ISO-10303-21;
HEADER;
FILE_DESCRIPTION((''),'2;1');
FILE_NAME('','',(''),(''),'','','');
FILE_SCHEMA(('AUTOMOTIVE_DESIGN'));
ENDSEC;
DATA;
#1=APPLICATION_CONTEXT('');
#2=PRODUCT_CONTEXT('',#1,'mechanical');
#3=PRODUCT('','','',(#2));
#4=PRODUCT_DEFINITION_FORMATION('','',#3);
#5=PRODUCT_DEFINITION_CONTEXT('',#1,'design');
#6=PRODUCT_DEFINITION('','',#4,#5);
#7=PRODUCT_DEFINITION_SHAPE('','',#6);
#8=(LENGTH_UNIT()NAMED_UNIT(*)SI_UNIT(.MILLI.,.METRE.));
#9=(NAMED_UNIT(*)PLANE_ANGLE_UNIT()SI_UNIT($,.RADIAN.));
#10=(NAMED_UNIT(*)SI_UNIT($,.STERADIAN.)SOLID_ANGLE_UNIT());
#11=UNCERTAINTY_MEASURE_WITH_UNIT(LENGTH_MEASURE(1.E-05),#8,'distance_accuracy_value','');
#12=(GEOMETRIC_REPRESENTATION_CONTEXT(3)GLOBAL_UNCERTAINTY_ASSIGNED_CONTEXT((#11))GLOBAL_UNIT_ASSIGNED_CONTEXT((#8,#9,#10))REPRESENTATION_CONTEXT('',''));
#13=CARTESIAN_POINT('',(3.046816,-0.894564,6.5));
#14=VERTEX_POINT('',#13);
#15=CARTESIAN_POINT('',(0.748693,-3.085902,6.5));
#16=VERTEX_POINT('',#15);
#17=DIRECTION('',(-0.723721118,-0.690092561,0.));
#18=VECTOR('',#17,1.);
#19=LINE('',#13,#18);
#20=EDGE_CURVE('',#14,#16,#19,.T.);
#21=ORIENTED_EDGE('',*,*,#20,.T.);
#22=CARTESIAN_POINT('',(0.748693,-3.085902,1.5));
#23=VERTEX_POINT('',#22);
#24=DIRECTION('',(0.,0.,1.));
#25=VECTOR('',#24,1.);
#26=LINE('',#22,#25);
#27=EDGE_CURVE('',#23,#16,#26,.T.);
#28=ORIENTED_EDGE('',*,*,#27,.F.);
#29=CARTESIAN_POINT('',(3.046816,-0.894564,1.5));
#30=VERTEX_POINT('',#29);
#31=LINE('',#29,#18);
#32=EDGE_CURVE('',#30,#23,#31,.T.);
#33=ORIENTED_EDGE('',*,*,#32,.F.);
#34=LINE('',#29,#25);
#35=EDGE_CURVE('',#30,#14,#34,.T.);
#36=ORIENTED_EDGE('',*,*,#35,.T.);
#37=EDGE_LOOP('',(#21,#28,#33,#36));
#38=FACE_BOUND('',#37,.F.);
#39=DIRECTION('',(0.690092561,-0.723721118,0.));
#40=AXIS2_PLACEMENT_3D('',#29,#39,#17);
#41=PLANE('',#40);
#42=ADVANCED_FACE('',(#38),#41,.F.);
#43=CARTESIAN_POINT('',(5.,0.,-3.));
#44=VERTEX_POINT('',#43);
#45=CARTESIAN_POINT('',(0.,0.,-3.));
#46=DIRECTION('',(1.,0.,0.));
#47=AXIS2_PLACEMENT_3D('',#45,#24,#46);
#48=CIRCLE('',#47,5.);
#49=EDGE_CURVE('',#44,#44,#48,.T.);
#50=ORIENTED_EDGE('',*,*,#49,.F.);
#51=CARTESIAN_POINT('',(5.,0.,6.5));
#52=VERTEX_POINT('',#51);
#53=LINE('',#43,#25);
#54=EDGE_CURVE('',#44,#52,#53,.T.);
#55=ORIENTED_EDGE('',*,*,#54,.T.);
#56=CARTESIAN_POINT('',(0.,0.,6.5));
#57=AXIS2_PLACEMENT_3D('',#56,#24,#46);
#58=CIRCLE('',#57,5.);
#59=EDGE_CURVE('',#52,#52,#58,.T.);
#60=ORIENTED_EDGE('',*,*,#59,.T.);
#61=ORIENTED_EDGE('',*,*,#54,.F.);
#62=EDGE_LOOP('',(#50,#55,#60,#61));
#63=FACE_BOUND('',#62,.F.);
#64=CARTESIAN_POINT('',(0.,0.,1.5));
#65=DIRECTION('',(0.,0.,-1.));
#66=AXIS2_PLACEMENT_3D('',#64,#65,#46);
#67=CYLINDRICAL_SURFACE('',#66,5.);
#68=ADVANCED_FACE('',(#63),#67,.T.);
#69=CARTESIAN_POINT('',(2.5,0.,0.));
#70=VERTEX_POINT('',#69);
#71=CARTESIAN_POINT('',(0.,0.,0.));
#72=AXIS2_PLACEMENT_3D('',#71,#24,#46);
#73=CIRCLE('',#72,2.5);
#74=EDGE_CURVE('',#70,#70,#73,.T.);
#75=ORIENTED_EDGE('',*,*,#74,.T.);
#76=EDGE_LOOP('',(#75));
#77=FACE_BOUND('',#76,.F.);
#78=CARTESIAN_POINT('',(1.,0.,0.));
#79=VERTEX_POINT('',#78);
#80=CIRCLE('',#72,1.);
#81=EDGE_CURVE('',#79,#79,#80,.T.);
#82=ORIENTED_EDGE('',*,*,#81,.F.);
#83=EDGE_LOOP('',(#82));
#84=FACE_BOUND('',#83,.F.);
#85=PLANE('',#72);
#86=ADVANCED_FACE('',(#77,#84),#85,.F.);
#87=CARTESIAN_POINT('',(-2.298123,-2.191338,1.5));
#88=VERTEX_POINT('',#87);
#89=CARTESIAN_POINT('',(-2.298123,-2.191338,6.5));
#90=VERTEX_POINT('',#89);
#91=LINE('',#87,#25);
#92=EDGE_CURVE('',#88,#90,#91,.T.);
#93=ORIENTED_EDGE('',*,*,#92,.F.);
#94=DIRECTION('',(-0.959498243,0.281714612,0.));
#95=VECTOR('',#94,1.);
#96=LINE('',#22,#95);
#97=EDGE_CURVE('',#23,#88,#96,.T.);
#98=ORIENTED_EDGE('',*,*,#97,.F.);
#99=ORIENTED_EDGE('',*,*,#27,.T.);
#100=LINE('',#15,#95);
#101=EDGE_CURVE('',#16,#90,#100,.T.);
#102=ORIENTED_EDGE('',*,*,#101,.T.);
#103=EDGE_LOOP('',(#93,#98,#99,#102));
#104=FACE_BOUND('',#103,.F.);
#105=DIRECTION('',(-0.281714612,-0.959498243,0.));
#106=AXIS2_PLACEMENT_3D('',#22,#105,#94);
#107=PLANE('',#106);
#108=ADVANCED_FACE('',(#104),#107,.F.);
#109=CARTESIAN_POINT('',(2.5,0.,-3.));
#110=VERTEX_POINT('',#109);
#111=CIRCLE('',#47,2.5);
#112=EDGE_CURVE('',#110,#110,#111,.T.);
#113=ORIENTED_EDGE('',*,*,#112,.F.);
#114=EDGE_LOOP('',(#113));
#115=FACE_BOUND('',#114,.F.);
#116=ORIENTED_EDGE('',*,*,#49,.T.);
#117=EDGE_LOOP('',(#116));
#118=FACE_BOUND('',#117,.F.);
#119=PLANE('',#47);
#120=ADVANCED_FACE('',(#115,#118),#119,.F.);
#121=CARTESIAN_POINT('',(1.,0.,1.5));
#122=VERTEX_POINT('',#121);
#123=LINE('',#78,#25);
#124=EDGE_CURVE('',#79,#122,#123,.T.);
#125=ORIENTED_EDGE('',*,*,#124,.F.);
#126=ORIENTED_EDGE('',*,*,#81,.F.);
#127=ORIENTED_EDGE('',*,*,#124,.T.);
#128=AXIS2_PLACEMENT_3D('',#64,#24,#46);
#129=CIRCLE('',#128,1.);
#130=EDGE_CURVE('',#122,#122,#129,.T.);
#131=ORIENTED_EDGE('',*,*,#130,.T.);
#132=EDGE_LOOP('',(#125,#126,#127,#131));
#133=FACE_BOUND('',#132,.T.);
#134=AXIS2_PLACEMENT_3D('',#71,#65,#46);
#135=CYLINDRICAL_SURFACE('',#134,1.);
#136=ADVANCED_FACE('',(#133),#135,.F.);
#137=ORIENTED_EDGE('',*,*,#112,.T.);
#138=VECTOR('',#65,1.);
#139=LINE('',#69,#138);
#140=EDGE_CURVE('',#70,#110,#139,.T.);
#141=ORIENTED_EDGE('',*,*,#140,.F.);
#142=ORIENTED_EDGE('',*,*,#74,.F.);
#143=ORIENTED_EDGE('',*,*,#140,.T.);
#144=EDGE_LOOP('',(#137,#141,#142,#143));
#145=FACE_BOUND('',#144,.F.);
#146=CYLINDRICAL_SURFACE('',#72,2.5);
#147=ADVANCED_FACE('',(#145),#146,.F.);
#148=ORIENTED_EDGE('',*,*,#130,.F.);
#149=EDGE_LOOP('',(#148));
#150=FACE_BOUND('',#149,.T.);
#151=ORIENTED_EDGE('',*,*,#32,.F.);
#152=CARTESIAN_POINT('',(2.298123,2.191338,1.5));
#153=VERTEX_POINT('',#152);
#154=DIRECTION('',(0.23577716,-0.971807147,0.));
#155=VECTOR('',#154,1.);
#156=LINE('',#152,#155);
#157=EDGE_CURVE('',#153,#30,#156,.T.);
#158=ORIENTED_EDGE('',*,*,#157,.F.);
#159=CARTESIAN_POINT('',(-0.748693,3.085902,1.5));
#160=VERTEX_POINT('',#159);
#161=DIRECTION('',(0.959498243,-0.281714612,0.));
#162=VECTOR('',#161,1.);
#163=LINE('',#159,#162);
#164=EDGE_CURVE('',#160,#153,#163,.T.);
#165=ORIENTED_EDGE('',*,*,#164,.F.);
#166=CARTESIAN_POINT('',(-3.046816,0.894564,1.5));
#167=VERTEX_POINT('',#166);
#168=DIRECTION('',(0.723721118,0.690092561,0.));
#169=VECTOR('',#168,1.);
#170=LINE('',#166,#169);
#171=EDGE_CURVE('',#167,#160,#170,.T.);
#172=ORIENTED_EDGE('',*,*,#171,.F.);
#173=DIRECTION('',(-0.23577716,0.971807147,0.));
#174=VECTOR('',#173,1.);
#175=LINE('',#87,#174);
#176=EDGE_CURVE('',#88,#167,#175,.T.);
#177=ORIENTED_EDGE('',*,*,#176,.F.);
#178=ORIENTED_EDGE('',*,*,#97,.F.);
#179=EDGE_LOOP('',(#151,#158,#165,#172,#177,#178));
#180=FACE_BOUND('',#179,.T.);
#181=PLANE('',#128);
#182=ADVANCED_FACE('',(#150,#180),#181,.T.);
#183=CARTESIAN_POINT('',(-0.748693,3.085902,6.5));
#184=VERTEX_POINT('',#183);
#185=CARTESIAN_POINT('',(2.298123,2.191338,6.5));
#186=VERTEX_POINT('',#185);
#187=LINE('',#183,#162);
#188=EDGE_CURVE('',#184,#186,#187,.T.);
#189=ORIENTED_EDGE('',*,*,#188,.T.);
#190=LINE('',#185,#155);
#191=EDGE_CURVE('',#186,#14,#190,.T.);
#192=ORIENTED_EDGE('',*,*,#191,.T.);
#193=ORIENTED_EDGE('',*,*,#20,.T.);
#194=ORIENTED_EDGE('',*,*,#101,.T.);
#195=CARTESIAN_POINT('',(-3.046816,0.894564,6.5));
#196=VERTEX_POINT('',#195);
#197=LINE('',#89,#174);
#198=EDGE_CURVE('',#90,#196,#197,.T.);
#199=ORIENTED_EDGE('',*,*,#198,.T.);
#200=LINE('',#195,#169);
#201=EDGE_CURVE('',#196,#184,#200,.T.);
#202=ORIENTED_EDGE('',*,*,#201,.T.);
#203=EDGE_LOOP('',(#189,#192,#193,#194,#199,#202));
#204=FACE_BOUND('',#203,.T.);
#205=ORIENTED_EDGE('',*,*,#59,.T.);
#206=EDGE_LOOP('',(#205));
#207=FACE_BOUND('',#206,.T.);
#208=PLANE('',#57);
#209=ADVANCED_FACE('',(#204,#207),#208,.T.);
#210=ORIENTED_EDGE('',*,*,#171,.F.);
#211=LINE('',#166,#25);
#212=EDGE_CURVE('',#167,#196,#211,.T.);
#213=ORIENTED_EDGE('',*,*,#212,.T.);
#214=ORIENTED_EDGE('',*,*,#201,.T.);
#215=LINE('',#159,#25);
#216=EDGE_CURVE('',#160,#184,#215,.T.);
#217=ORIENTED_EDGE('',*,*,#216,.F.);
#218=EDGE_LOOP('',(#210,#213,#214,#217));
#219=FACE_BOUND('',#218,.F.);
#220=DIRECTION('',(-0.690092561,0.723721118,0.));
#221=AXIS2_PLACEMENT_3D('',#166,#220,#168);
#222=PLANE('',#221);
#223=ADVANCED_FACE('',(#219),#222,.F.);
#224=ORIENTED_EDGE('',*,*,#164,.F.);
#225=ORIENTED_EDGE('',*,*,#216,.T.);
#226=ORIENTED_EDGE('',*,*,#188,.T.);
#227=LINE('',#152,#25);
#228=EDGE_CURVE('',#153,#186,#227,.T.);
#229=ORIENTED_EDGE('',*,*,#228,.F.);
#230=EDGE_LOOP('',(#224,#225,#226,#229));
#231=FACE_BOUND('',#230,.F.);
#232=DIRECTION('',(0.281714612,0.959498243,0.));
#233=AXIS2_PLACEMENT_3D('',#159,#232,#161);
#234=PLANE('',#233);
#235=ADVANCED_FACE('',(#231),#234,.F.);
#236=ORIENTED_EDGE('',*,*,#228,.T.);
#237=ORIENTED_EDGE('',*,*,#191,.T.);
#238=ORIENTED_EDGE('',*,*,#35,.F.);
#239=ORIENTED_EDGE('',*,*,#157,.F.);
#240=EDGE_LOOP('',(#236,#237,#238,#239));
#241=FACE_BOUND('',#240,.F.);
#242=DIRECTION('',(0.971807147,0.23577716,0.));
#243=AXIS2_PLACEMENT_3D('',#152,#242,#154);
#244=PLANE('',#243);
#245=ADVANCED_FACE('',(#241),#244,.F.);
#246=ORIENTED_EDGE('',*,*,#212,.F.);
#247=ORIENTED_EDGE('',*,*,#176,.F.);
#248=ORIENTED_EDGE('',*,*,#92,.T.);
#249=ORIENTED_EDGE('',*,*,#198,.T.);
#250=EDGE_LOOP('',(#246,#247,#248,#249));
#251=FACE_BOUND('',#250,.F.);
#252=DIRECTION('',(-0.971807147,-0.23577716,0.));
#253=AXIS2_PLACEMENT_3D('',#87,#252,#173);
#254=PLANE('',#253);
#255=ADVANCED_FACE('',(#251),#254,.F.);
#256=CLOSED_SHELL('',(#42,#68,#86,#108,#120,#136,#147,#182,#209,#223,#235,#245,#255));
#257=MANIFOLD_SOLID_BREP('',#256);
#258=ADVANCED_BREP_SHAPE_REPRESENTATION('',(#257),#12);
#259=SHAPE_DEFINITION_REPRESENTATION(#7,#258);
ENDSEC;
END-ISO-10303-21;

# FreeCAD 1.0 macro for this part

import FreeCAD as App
import Part
import Sketcher

V = App.Vector

doc = App.newDocument("Part")
body = doc.addObject("PartDesign::Body", "Body")

# Sketch on XY plane
sketch1 = body.newObject("Sketcher::SketchObject", "Sketch")
sketch1.AttachmentSupport = (doc.getObject("XY_Plane"), [""])
sketch1.MapMode = "FlatFace"
sketch1.addGeometry(Part.Circle(V(0, 0, 0), V(0, 0, 1), 5), False)
sketch1.addGeometry(Part.Circle(V(0, 0, 0), V(0, 0, 1), 1), False)
sketch1.addConstraint(Sketcher.Constraint("Coincident", 0, 3, -1, 1))
sketch1.addConstraint(Sketcher.Constraint("Coincident", 1, 3, -1, 1))
sketch1.addConstraint(Sketcher.Constraint("Diameter", 0, 10.0))
sketch1.addConstraint(Sketcher.Constraint("Diameter", 1, 2.0))
pad1 = body.newObject("PartDesign::Pad", "Pad")
pad1.Profile = sketch1
pad1.Length = 1.5

# Sketch on XY plane
sketch2 = body.newObject("Sketcher::SketchObject", "Sketch001")
sketch2.AttachmentSupport = (doc.getObject("XY_Plane"), [""])
sketch2.MapMode = "FlatFace"
sketch2.addGeometry(Part.Circle(V(0, 0, 0), V(0, 0, 1), 5), False)
sketch2.addGeometry(Part.Circle(V(0, 0, 0), V(0, 0, 1), 2.5), False)
sketch2.addConstraint(Sketcher.Constraint("Coincident", 0, 3, -1, 1))
sketch2.addConstraint(Sketcher.Constraint("Coincident", 1, 3, -1, 1))
sketch2.addConstraint(Sketcher.Constraint("Diameter", 0, 10.0))
sketch2.addConstraint(Sketcher.Constraint("Diameter", 1, 5.0))
pad2 = body.newObject("PartDesign::Pad", "Pad001")
pad2.Profile = sketch2
pad2.Length = 3
pad2.Reversed = True

# Sketch on XY plane
sketch3 = body.newObject("Sketcher::SketchObject", "Sketch002")
sketch3.AttachmentSupport = (doc.getObject("XY_Plane"), [""])
sketch3.MapMode = "FlatFace"
sketch3.AttachmentOffset = App.Placement(V(0, 0, 1.5), App.Rotation())
sketch3.addGeometry(Part.Circle(V(0, 0, 0), V(0, 0, 1), 5), False)
sketch3.addGeometry(Part.LineSegment(V(-2.3, -2.2, 0), V(-3, 0.9, 0)), False)
sketch3.addGeometry(Part.LineSegment(V(-3, 0.9, 0), V(-0.7, 3.1, 0)), False)
sketch3.addGeometry(Part.LineSegment(V(-0.7, 3.1, 0), V(2.3, 2.2, 0)), False)
sketch3.addGeometry(Part.LineSegment(V(2.3, 2.2, 0), V(3, -0.9, 0)), False)
sketch3.addGeometry(Part.LineSegment(V(3, -0.9, 0), V(0.7, -3.1, 0)), False)
sketch3.addGeometry(Part.LineSegment(V(0.7, -3.1, 0), V(-2.3, -2.2, 0)), False)
sketch3.addConstraint(Sketcher.Constraint("Coincident", 1, 2, 2, 1))
sketch3.addConstraint(Sketcher.Constraint("Coincident", 2, 2, 3, 1))
sketch3.addConstraint(Sketcher.Constraint("Coincident", 3, 2, 4, 1))
sketch3.addConstraint(Sketcher.Constraint("Coincident", 4, 2, 5, 1))
sketch3.addConstraint(Sketcher.Constraint("Coincident", 5, 2, 6, 1))
sketch3.addConstraint(Sketcher.Constraint("Coincident", 6, 2, 1, 1))
sketch3.addConstraint(Sketcher.Constraint("Coincident", 0, 3, -1, 1))
sketch3.addConstraint(Sketcher.Constraint("Symmetric", 1, 2, 4, 2, -1, 1))
sketch3.addConstraint(Sketcher.Constraint("Symmetric", 2, 2, 5, 2, -1, 1))
sketch3.addConstraint(Sketcher.Constraint("Symmetric", 3, 2, 6, 2, -1, 1))
sketch3.addConstraint(Sketcher.Constraint("Equal", 1, 2))
sketch3.addConstraint(Sketcher.Constraint("Equal", 2, 3))
sketch3.addConstraint(Sketcher.Constraint("Diameter", 0, 10.0))
sketch3.addConstraint(Sketcher.Constraint("DistanceY", -1, 1, 2, 2, 3.085902))
sketch3.addConstraint(Sketcher.Constraint("DistanceY", 4, 2, 3, 2, 3.085902))
sketch3.addConstraint(Sketcher.Constraint("DistanceY", -1, 1, 3, 2, 2.191338))
sketch3.addConstraint(Sketcher.Constraint("DistanceX", 1, 2, 3, 2, 5.344939))
pad3 = body.newObject("PartDesign::Pad", "Pad002")
pad3.Profile = sketch3
pad3.Length = 5

doc.recompute()
